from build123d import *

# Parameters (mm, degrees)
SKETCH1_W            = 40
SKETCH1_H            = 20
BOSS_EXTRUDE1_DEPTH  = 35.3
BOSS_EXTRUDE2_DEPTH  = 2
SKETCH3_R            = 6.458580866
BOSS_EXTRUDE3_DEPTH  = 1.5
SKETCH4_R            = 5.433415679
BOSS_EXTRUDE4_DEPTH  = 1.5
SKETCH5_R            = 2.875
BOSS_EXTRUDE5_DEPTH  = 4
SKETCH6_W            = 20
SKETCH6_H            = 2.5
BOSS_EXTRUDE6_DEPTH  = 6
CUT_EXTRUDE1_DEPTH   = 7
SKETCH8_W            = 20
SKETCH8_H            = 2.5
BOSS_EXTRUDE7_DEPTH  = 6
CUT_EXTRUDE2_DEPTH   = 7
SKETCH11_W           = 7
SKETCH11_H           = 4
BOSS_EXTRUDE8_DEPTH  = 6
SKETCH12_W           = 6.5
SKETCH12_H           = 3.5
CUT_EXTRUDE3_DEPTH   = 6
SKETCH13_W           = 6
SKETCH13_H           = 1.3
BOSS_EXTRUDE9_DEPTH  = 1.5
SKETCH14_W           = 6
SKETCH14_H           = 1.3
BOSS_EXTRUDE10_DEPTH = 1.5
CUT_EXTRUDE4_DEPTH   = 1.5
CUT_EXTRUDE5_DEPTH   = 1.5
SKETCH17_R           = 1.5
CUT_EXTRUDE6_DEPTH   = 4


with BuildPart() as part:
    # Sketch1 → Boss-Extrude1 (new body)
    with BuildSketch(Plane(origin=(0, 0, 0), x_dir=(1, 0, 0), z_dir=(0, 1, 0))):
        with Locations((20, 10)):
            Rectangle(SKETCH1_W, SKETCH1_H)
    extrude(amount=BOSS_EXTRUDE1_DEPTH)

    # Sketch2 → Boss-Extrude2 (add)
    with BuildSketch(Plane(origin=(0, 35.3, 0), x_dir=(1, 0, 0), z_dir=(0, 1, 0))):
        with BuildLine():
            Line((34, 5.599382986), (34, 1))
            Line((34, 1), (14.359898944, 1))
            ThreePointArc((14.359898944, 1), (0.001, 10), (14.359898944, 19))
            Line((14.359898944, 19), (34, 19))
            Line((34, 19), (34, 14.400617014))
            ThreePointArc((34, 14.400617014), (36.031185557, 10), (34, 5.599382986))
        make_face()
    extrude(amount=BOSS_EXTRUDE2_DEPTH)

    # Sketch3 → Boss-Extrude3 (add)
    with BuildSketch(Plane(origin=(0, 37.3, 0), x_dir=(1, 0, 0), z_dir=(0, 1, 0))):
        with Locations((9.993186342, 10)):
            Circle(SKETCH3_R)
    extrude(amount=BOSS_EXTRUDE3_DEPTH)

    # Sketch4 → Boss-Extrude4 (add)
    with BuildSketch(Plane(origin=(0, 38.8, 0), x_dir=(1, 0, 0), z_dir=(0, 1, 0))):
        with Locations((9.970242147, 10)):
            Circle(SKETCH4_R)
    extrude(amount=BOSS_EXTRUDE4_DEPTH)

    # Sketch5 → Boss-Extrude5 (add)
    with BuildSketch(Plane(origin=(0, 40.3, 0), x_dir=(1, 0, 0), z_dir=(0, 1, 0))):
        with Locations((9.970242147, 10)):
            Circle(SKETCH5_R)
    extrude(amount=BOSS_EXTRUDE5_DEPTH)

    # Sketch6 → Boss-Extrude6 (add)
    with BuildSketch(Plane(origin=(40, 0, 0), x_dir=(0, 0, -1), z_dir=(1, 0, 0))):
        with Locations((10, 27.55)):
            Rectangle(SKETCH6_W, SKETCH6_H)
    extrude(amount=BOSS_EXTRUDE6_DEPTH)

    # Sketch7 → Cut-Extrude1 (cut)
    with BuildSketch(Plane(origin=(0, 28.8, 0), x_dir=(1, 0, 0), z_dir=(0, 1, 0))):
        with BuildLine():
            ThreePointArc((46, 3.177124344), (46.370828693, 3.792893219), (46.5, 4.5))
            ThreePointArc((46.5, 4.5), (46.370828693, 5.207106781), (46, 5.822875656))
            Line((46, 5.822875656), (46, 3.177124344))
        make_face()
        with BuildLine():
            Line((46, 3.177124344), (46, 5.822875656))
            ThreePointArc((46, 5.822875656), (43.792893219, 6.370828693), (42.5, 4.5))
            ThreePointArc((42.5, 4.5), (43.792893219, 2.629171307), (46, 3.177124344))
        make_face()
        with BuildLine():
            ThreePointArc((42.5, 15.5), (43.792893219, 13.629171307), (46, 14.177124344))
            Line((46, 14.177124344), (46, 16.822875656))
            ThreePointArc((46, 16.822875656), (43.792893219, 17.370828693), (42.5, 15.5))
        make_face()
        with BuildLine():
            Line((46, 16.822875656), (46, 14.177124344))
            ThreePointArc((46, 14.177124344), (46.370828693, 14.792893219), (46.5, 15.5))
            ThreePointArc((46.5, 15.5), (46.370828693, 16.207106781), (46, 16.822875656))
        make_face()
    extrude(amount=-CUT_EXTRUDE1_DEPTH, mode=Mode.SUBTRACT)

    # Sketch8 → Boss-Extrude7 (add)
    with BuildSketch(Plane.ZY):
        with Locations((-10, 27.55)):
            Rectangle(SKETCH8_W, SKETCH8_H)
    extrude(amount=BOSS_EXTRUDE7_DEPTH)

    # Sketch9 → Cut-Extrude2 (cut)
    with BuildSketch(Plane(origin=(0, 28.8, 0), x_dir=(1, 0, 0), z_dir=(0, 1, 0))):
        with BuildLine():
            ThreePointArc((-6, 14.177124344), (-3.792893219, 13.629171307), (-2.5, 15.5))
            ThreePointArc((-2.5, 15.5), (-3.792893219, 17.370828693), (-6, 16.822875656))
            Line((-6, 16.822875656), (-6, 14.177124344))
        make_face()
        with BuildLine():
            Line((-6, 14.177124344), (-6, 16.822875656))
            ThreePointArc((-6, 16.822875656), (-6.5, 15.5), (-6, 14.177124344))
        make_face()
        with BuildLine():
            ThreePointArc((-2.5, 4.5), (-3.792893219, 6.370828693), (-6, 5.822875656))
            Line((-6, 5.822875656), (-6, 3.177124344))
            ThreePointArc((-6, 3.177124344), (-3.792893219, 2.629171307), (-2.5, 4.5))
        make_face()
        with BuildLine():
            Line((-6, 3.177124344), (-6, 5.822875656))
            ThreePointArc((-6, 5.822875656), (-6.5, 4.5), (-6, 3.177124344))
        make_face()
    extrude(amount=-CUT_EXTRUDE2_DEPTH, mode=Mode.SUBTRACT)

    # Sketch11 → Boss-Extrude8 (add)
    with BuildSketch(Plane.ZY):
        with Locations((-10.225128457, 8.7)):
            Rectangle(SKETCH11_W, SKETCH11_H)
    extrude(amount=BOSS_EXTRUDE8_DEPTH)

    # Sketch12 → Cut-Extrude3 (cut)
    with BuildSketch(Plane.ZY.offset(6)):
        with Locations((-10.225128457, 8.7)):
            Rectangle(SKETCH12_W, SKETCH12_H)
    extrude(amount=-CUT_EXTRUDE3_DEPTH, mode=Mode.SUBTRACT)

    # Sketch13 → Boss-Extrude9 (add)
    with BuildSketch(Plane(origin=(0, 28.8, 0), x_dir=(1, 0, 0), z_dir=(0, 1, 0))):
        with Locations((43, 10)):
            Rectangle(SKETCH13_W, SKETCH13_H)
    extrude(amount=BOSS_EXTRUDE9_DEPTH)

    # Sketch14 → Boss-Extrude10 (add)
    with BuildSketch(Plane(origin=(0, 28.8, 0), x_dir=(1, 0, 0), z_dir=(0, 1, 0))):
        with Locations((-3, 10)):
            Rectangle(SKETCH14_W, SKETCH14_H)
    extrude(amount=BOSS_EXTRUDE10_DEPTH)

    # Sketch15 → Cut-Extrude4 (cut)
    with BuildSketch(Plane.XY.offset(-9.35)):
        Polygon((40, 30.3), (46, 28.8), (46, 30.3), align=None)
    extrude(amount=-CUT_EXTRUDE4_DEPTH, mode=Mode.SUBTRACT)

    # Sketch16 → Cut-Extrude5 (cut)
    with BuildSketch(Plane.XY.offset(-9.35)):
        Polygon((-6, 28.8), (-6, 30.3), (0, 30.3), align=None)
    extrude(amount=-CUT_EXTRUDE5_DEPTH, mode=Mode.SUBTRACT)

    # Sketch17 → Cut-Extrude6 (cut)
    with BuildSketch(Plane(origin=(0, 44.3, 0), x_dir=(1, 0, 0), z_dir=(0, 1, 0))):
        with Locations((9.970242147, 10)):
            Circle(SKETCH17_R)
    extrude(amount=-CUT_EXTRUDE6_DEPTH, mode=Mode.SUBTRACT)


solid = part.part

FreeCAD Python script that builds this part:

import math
import FreeCAD as App
import Part
import Sketcher

doc = App.newDocument("Part")
body = doc.addObject("PartDesign::Body", "Body")

# Sketch on XZ plane
sketch1 = body.newObject("Sketcher::SketchObject", "Sketch")
sketch1.AttachmentSupport = (doc.getObject("XZ_Plane"), [""])
sketch1.MapMode = "FlatFace"
sketch1.addGeometry([
    Part.LineSegment(App.Vector(0, -20, 0), App.Vector(0, 0, 0)),
    Part.LineSegment(App.Vector(0, 0, 0), App.Vector(40, 0, 0)),
    Part.LineSegment(App.Vector(40, 0, 0), App.Vector(40, -20, 0)),
    Part.LineSegment(App.Vector(40, -20, 0), App.Vector(0, -20, 0)),
], False)
sketch1.addConstraint([
    Sketcher.Constraint("Coincident", 0, 2, 1, 1),
    Sketcher.Constraint("Coincident", 1, 2, 2, 1),
    Sketcher.Constraint("Coincident", 2, 2, 3, 1),
    Sketcher.Constraint("Coincident", 3, 2, 0, 1),
    Sketcher.Constraint("Vertical", 0),
    Sketcher.Constraint("Horizontal", 1),
    Sketcher.Constraint("Vertical", 2),
    Sketcher.Constraint("Horizontal", 3),
    Sketcher.Constraint("Coincident", 0, 2, -1, 1),
    Sketcher.Constraint("DistanceX", 1, 1, 1, 2, 40.0),
    Sketcher.Constraint("DistanceY", 0, 1, 0, 2, 20.0),
])
pad1 = body.newObject("PartDesign::Pad", "Pad")
pad1.Profile = sketch1
pad1.Length = 35.3
pad1.Reversed = True

# Sketch on XZ plane
sketch2 = body.newObject("Sketcher::SketchObject", "Sketch001")
sketch2.AttachmentSupport = (doc.getObject("XZ_Plane"), [""])
sketch2.MapMode = "FlatFace"
sketch2.AttachmentOffset = App.Placement(App.Vector(0, 0, -35.3), App.Rotation())
sketch2.addGeometry([
    Part.LineSegment(App.Vector(34, -1, 0), App.Vector(34, -5.6, 0)),  # 0
    Part.ArcOfCircle(Part.Circle(App.Vector(30.2, -10, 0), App.Vector(0, 0, 1), 5.8), math.radians(-50), math.radians(50)),  # 1
    Part.LineSegment(App.Vector(34, -14.4, 0), App.Vector(34, -19, 0)),  # 2
    Part.LineSegment(App.Vector(34, -19, 0), App.Vector(14.4, -19, 0)),  # 3
    Part.ArcOfCircle(Part.Circle(App.Vector(10, -10, 0), App.Vector(0, 0, 1), 10), math.radians(64), math.radians(296)),  # 4
    Part.LineSegment(App.Vector(14.4, -1, 0), App.Vector(34, -1, 0)),  # 5
], False)
sketch2.addConstraint([
    Sketcher.Constraint("Coincident", 0, 2, 1, 2),
    Sketcher.Constraint("Coincident", 1, 1, 2, 1),
    Sketcher.Constraint("Coincident", 2, 2, 3, 1),
    Sketcher.Constraint("Coincident", 3, 2, 4, 2),
    Sketcher.Constraint("Coincident", 4, 1, 5, 1),
    Sketcher.Constraint("Coincident", 5, 2, 0, 1),
    Sketcher.Constraint("Vertical", 0),
    Sketcher.Constraint("Vertical", 2),
    Sketcher.Constraint("Horizontal", 3),
    Sketcher.Constraint("Horizontal", 5),
    Sketcher.Constraint("Horizontal", 1, 3, 4, 3),
    Sketcher.Constraint("Vertical", 0, 2, 1, 1),
    Sketcher.Constraint("Vertical", 3, 2, 4, 1),
    Sketcher.Constraint("Radius", 4, 10.0),
    Sketcher.Constraint("DistanceY", 1, 3, -1, 1, 10.0),
    Sketcher.Constraint("DistanceX", -1, 1, 0, 2, 34.0),
    Sketcher.Constraint("DistanceY", 2, 2, -1, 1, 19.0),
    Sketcher.Constraint("Radius", 1, 5.782619),
    Sketcher.Constraint("DistanceX", 3, 2, 3, 1, 19.640101),
    Sketcher.Constraint("DistanceY", 0, 2, 0, 1, 4.599383),
])
pad2 = body.newObject("PartDesign::Pad", "Pad001")
pad2.Profile = sketch2
pad2.Length = 2
pad2.Reversed = True

# Sketch on XZ plane
sketch3 = body.newObject("Sketcher::SketchObject", "Sketch002")
sketch3.AttachmentSupport = (doc.getObject("XZ_Plane"), [""])
sketch3.MapMode = "FlatFace"
sketch3.AttachmentOffset = App.Placement(App.Vector(0, 0, -37.3), App.Rotation())
sketch3.addGeometry(Part.Circle(App.Vector(10, -10, 0), App.Vector(0, 0, 1), 6), False)
sketch3.addConstraint([
    Sketcher.Constraint("DistanceY", 0, 3, -1, 1, 10.0),
    Sketcher.Constraint("Diameter", 0, 12.917162),
    Sketcher.Constraint("DistanceX", -1, 1, 0, 3, 9.993186),
])
pad3 = body.newObject("PartDesign::Pad", "Pad002")
pad3.Profile = sketch3
pad3.Length = 1.5
pad3.Reversed = True

# Sketch on XZ plane
sketch4 = body.newObject("Sketcher::SketchObject", "Sketch003")
sketch4.AttachmentSupport = (doc.getObject("XZ_Plane"), [""])
sketch4.MapMode = "FlatFace"
sketch4.AttachmentOffset = App.Placement(App.Vector(0, 0, -38.8), App.Rotation())
sketch4.addGeometry(Part.Circle(App.Vector(10, -10, 0), App.Vector(0, 0, 1), 5), False)
sketch4.addConstraint([
    Sketcher.Constraint("DistanceY", 0, 3, -1, 1, 10.0),
    Sketcher.Constraint("Diameter", 0, 10.866831),
    Sketcher.Constraint("DistanceX", -1, 1, 0, 3, 9.970242),
])
pad4 = body.newObject("PartDesign::Pad", "Pad003")
pad4.Profile = sketch4
pad4.Length = 1.5
pad4.Reversed = True

# Sketch on XZ plane
sketch5 = body.newObject("Sketcher::SketchObject", "Sketch004")
sketch5.AttachmentSupport = (doc.getObject("XZ_Plane"), [""])
sketch5.MapMode = "FlatFace"
sketch5.AttachmentOffset = App.Placement(App.Vector(0, 0, -40.3), App.Rotation())
sketch5.addGeometry(Part.Circle(App.Vector(10, -10, 0), App.Vector(0, 0, 1), 2.9), False)
sketch5.addConstraint([
    Sketcher.Constraint("Diameter", 0, 5.75),
    Sketcher.Constraint("DistanceY", 0, 3, -1, 1, 10.0),
    Sketcher.Constraint("DistanceX", -1, 1, 0, 3, 9.970242),
])
pad5 = body.newObject("PartDesign::Pad", "Pad004")
pad5.Profile = sketch5
pad5.Length = 4
pad5.Reversed = True

# Sketch on YZ plane
sketch6 = body.newObject("Sketcher::SketchObject", "Sketch005")
sketch6.AttachmentSupport = (doc.getObject("YZ_Plane"), [""])
sketch6.MapMode = "FlatFace"
sketch6.AttachmentOffset = App.Placement(App.Vector(0, 0, 40), App.Rotation())
sketch6.addGeometry([
    Part.LineSegment(App.Vector(28.8, 0, 0), App.Vector(26.3, 0, 0)),
    Part.LineSegment(App.Vector(26.3, 0, 0), App.Vector(26.3, -20, 0)),
    Part.LineSegment(App.Vector(26.3, -20, 0), App.Vector(28.8, -20, 0)),
    Part.LineSegment(App.Vector(28.8, -20, 0), App.Vector(28.8, 0, 0)),
], False)
sketch6.addConstraint([
    Sketcher.Constraint("Coincident", 0, 2, 1, 1),
    Sketcher.Constraint("Coincident", 1, 2, 2, 1),
    Sketcher.Constraint("Coincident", 2, 2, 3, 1),
    Sketcher.Constraint("Coincident", 3, 2, 0, 1),
    Sketcher.Constraint("Horizontal", 0),
    Sketcher.Constraint("Vertical", 1),
    Sketcher.Constraint("Horizontal", 2),
    Sketcher.Constraint("Vertical", 3),
    Sketcher.Constraint("PointOnObject", 0, 2, -1),
    Sketcher.Constraint("DistanceY", 1, 2, 1, 1, 20.0),
    Sketcher.Constraint("DistanceX", 0, 2, 0, 1, 2.5),
    Sketcher.Constraint("DistanceX", -1, 1, 0, 2, 26.3),
])
pad6 = body.newObject("PartDesign::Pad", "Pad005")
pad6.Profile = sketch6
pad6.Length = 6

# Sketch on XZ plane
sketch7 = body.newObject("Sketcher::SketchObject", "Sketch006")
sketch7.AttachmentSupport = (doc.getObject("XZ_Plane"), [""])
sketch7.MapMode = "FlatFace"
sketch7.AttachmentOffset = App.Placement(App.Vector(0, 0, -28.8), App.Rotation())
sketch7.addGeometry([
    Part.ArcOfCircle(Part.Circle(App.Vector(44.5, -4.5, 0), App.Vector(0, 0, 1), 2), math.radians(0), math.radians(41)),  # 0
    Part.ArcOfCircle(Part.Circle(App.Vector(44.5, -4.5, 0), App.Vector(0, 0, 1), 2), math.radians(-41), math.radians(0)),  # 1
    Part.ArcOfCircle(Part.Circle(App.Vector(44.5, -4.5, 0), App.Vector(0, 0, 1), 2), math.radians(-180), math.radians(-41)),  # 2
    Part.ArcOfCircle(Part.Circle(App.Vector(44.5, -4.5, 0), App.Vector(0, 0, 1), 2), math.radians(41), math.radians(180)),  # 3
    Part.ArcOfCircle(Part.Circle(App.Vector(44.5, -15.5, 0), App.Vector(0, 0, 1), 2), math.radians(41), math.radians(180)),  # 4
    Part.ArcOfCircle(Part.Circle(App.Vector(44.5, -15.5, 0), App.Vector(0, 0, 1), 2), math.radians(0), math.radians(41)),  # 5
    Part.ArcOfCircle(Part.Circle(App.Vector(44.5, -15.5, 0), App.Vector(0, 0, 1), 2), math.radians(-41), math.radians(0)),  # 6
    Part.ArcOfCircle(Part.Circle(App.Vector(44.5, -15.5, 0), App.Vector(0, 0, 1), 2), math.radians(-180), math.radians(-41)),  # 7
], False)
sketch7.addConstraint([
    Sketcher.Constraint("Tangent", 0, 1, 1, 2),
    Sketcher.Constraint("Tangent", 1, 1, 2, 2),
    Sketcher.Constraint("Tangent", 2, 1, 3, 2),
    Sketcher.Constraint("Tangent", 3, 1, 0, 2),
    Sketcher.Constraint("Tangent", 4, 1, 5, 2),
    Sketcher.Constraint("Tangent", 5, 1, 6, 2),
    Sketcher.Constraint("Tangent", 6, 1, 7, 2),
    Sketcher.Constraint("Tangent", 7, 1, 4, 2),
    Sketcher.Constraint("Equal", 0, 1),
    Sketcher.Constraint("Equal", 3, 4),
    Sketcher.Constraint("Equal", 4, 5),
    Sketcher.Constraint("Horizontal", 3, 3, 0, 1),
    Sketcher.Constraint("Horizontal", 0, 1, 2, 1),
    Sketcher.Constraint("Horizontal", 7, 3, 5, 1),
    Sketcher.Constraint("Horizontal", 5, 1, 7, 1),
    Sketcher.Constraint("Vertical", 3, 3, 4, 3),
    Sketcher.Constraint("Vertical", 1, 1, 3, 1),
    Sketcher.Constraint("Vertical", 3, 1, 4, 1),
    Sketcher.Constraint("Vertical", 4, 1, 6, 1),
    Sketcher.Constraint("Radius", 0, 2.0),
    Sketcher.Constraint("DistanceX", -1, 1, 1, 1, 46.0),
    Sketcher.Constraint("DistanceY", 4, 3, 0, 3, 11.0),
    Sketcher.Constraint("DistanceX", -1, 1, 0, 3, 44.5),
    Sketcher.Constraint("DistanceY", 0, 3, -1, 1, 4.5),
])
pocket1 = body.newObject("PartDesign::Pocket", "Pocket")
pocket1.Profile = sketch7
pocket1.Length = 7
pocket1.Reversed = True

# Sketch on YZ plane
sketch8 = body.newObject("Sketcher::SketchObject", "Sketch007")
sketch8.AttachmentSupport = (doc.getObject("YZ_Plane"), [""])
sketch8.MapMode = "FlatFace"
sketch8.addGeometry([
    Part.LineSegment(App.Vector(28.8, -20, 0), App.Vector(26.3, -20, 0)),
    Part.LineSegment(App.Vector(26.3, -20, 0), App.Vector(26.3, 0, 0)),
    Part.LineSegment(App.Vector(26.3, 0, 0), App.Vector(28.8, 0, 0)),
    Part.LineSegment(App.Vector(28.8, 0, 0), App.Vector(28.8, -20, 0)),
], False)
sketch8.addConstraint([
    Sketcher.Constraint("Coincident", 0, 2, 1, 1),
    Sketcher.Constraint("Coincident", 1, 2, 2, 1),
    Sketcher.Constraint("Coincident", 2, 2, 3, 1),
    Sketcher.Constraint("Coincident", 3, 2, 0, 1),
    Sketcher.Constraint("Horizontal", 0),
    Sketcher.Constraint("Vertical", 1),
    Sketcher.Constraint("Horizontal", 2),
    Sketcher.Constraint("Vertical", 3),
    Sketcher.Constraint("PointOnObject", 1, 2, -1),
    Sketcher.Constraint("DistanceY", 1, 1, 1, 2, 20.0),
    Sketcher.Constraint("DistanceX", 0, 2, 0, 1, 2.5),
    Sketcher.Constraint("DistanceX", -1, 1, 0, 2, 26.3),
])
pad7 = body.newObject("PartDesign::Pad", "Pad006")
pad7.Profile = sketch8
pad7.Length = 6
pad7.Reversed = True

# Sketch on XZ plane
sketch9 = body.newObject("Sketcher::SketchObject", "Sketch008")
sketch9.AttachmentSupport = (doc.getObject("XZ_Plane"), [""])
sketch9.MapMode = "FlatFace"
sketch9.AttachmentOffset = App.Placement(App.Vector(0, 0, -28.8), App.Rotation())
sketch9.addGeometry([
    Part.ArcOfCircle(Part.Circle(App.Vector(-4.5, -15.5, 0), App.Vector(0, 0, 1), 2), math.radians(0), math.radians(139)),  # 0
    Part.ArcOfCircle(Part.Circle(App.Vector(-4.5, -15.5, 0), App.Vector(0, 0, 1), 2), math.radians(-139), math.radians(0)),  # 1
    Part.ArcOfCircle(Part.Circle(App.Vector(-4.5, -15.5, 0), App.Vector(0, 0, 1), 2), math.radians(139), math.radians(221)),  # 2
    Part.ArcOfCircle(Part.Circle(App.Vector(-4.5, -4.5, 0), App.Vector(0, 0, 1), 2), math.radians(-139), math.radians(0)),  # 3
    Part.ArcOfCircle(Part.Circle(App.Vector(-4.5, -4.5, 0), App.Vector(0, 0, 1), 2), math.radians(139), math.radians(221)),  # 4
    Part.ArcOfCircle(Part.Circle(App.Vector(-4.5, -4.5, 0), App.Vector(0, 0, 1), 2), math.radians(0), math.radians(139)),  # 5
], False)
sketch9.addConstraint([
    Sketcher.Constraint("Tangent", 0, 1, 1, 2),
    Sketcher.Constraint("Tangent", 1, 1, 2, 2),
    Sketcher.Constraint("Tangent", 2, 1, 0, 2),
    Sketcher.Constraint("Tangent", 3, 1, 4, 2),
    Sketcher.Constraint("Tangent", 4, 1, 5, 2),
    Sketcher.Constraint("Tangent", 5, 1, 3, 2),
    Sketcher.Constraint("Equal", 2, 3),
    Sketcher.Constraint("Horizontal", 2, 3, 0, 1),
    Sketcher.Constraint("Horizontal", 4, 3, 5, 1),
    Sketcher.Constraint("Vertical", 2, 3, 3, 3),
    Sketcher.Constraint("Vertical", 1, 1, 2, 1),
    Sketcher.Constraint("Vertical", 2, 1, 3, 1),
    Sketcher.Constraint("Vertical", 3, 1, 4, 1),
    Sketcher.Constraint("Radius", 0, 2.0),
    Sketcher.Constraint("DistanceX", 1, 1, -1, 1, 6.0),
    Sketcher.Constraint("DistanceY", 1, 3, 3, 3, 11.0),
    Sketcher.Constraint("DistanceX", 0, 3, -1, 1, 4.5),
    Sketcher.Constraint("DistanceY", 0, 3, -1, 1, 15.5),
])
pocket2 = body.newObject("PartDesign::Pocket", "Pocket001")
pocket2.Profile = sketch9
pocket2.Length = 7
pocket2.Reversed = True

# Sketch on YZ plane
sketch10 = body.newObject("Sketcher::SketchObject", "Sketch009")
sketch10.AttachmentSupport = (doc.getObject("YZ_Plane"), [""])
sketch10.MapMode = "FlatFace"
sketch10.addGeometry([
    Part.LineSegment(App.Vector(10.7, -13.7, 0), App.Vector(6.7, -13.7, 0)),
    Part.LineSegment(App.Vector(6.7, -13.7, 0), App.Vector(6.7, -6.7, 0)),
    Part.LineSegment(App.Vector(6.7, -6.7, 0), App.Vector(10.7, -6.7, 0)),
    Part.LineSegment(App.Vector(10.7, -6.7, 0), App.Vector(10.7, -13.7, 0)),
], False)
sketch10.addConstraint([
    Sketcher.Constraint("Coincident", 0, 2, 1, 1),
    Sketcher.Constraint("Coincident", 1, 2, 2, 1),
    Sketcher.Constraint("Coincident", 2, 2, 3, 1),
    Sketcher.Constraint("Coincident", 3, 2, 0, 1),
    Sketcher.Constraint("Horizontal", 0),
    Sketcher.Constraint("Vertical", 1),
    Sketcher.Constraint("Horizontal", 2),
    Sketcher.Constraint("Vertical", 3),
    Sketcher.Constraint("DistanceX", 0, 2, 0, 1, 4.0),
    Sketcher.Constraint("DistanceY", 1, 1, 1, 2, 7.0),
    Sketcher.Constraint("DistanceX", -1, 1, 0, 2, 6.7),
    Sketcher.Constraint("DistanceY", 0, 2, -1, 1, 13.725128),
])
pad8 = body.newObject("PartDesign::Pad", "Pad007")
pad8.Profile = sketch10
pad8.Length = 6
pad8.Reversed = True

# Sketch on YZ plane
sketch11 = body.newObject("Sketcher::SketchObject", "Sketch010")
sketch11.AttachmentSupport = (doc.getObject("YZ_Plane"), [""])
sketch11.MapMode = "FlatFace"
sketch11.AttachmentOffset = App.Placement(App.Vector(0, 0, -6), App.Rotation())
sketch11.addGeometry([
    Part.LineSegment(App.Vector(10.4, -13.5, 0), App.Vector(7, -13.5, 0)),
    Part.LineSegment(App.Vector(7, -13.5, 0), App.Vector(7, -7, 0)),
    Part.LineSegment(App.Vector(7, -7, 0), App.Vector(10.4, -7, 0)),
    Part.LineSegment(App.Vector(10.4, -7, 0), App.Vector(10.4, -13.5, 0)),
], False)
sketch11.addConstraint([
    Sketcher.Constraint("Coincident", 0, 2, 1, 1),
    Sketcher.Constraint("Coincident", 1, 2, 2, 1),
    Sketcher.Constraint("Coincident", 2, 2, 3, 1),
    Sketcher.Constraint("Coincident", 3, 2, 0, 1),
    Sketcher.Constraint("Horizontal", 0),
    Sketcher.Constraint("Vertical", 1),
    Sketcher.Constraint("Horizontal", 2),
    Sketcher.Constraint("Vertical", 3),
    Sketcher.Constraint("DistanceX", 0, 2, 0, 1, 3.5),
    Sketcher.Constraint("DistanceY", 1, 1, 1, 2, 6.5),
    Sketcher.Constraint("DistanceX", -1, 1, 0, 2, 6.95),
    Sketcher.Constraint("DistanceY", 0, 2, -1, 1, 13.475128),
])
pocket3 = body.newObject("PartDesign::Pocket", "Pocket002")
pocket3.Profile = sketch11
pocket3.Length = 6
pocket3.Reversed = True

# Sketch on XZ plane
sketch12 = body.newObject("Sketcher::SketchObject", "Sketch011")
sketch12.AttachmentSupport = (doc.getObject("XZ_Plane"), [""])
sketch12.MapMode = "FlatFace"
sketch12.AttachmentOffset = App.Placement(App.Vector(0, 0, -28.8), App.Rotation())
sketch12.addGeometry([
    Part.LineSegment(App.Vector(40, -10.7, 0), App.Vector(40, -9.3, 0)),
    Part.LineSegment(App.Vector(40, -9.3, 0), App.Vector(46, -9.3, 0)),
    Part.LineSegment(App.Vector(46, -9.3, 0), App.Vector(46, -10.7, 0)),
    Part.LineSegment(App.Vector(46, -10.7, 0), App.Vector(40, -10.7, 0)),
], False)
sketch12.addConstraint([
    Sketcher.Constraint("Coincident", 0, 2, 1, 1),
    Sketcher.Constraint("Coincident", 1, 2, 2, 1),
    Sketcher.Constraint("Coincident", 2, 2, 3, 1),
    Sketcher.Constraint("Coincident", 3, 2, 0, 1),
    Sketcher.Constraint("Vertical", 0),
    Sketcher.Constraint("Horizontal", 1),
    Sketcher.Constraint("Vertical", 2),
    Sketcher.Constraint("Horizontal", 3),
    Sketcher.Constraint("DistanceX", 1, 1, 1, 2, 6.0),
    Sketcher.Constraint("DistanceY", 0, 1, 0, 2, 1.3),
    Sketcher.Constraint("DistanceX", -1, 1, 0, 2, 40.0),
    Sketcher.Constraint("DistanceY", 0, 2, -1, 1, 9.35),
])
pad9 = body.newObject("PartDesign::Pad", "Pad008")
pad9.Profile = sketch12
pad9.Length = 1.5
pad9.Reversed = True

# Sketch on XZ plane
sketch13 = body.newObject("Sketcher::SketchObject", "Sketch012")
sketch13.AttachmentSupport = (doc.getObject("XZ_Plane"), [""])
sketch13.MapMode = "FlatFace"
sketch13.AttachmentOffset = App.Placement(App.Vector(0, 0, -28.8), App.Rotation())
sketch13.addGeometry([
    Part.LineSegment(App.Vector(-6, -10.7, 0), App.Vector(-6, -9.3, 0)),
    Part.LineSegment(App.Vector(-6, -9.3, 0), App.Vector(0, -9.3, 0)),
    Part.LineSegment(App.Vector(0, -9.3, 0), App.Vector(0, -10.7, 0)),
    Part.LineSegment(App.Vector(0, -10.7, 0), App.Vector(-6, -10.7, 0)),
], False)
sketch13.addConstraint([
    Sketcher.Constraint("Coincident", 0, 2, 1, 1),
    Sketcher.Constraint("Coincident", 1, 2, 2, 1),
    Sketcher.Constraint("Coincident", 2, 2, 3, 1),
    Sketcher.Constraint("Coincident", 3, 2, 0, 1),
    Sketcher.Constraint("Vertical", 0),
    Sketcher.Constraint("Horizontal", 1),
    Sketcher.Constraint("Vertical", 2),
    Sketcher.Constraint("Horizontal", 3),
    Sketcher.Constraint("PointOnObject", 1, 2, -2),
    Sketcher.Constraint("DistanceX", 1, 1, 1, 2, 6.0),
    Sketcher.Constraint("DistanceY", 0, 1, 0, 2, 1.3),
    Sketcher.Constraint("DistanceY", 0, 2, -1, 1, 9.35),
])
pad10 = body.newObject("PartDesign::Pad", "Pad009")
pad10.Profile = sketch13
pad10.Length = 1.5
pad10.Reversed = True

# Sketch on XY plane
sketch14 = body.newObject("Sketcher::SketchObject", "Sketch013")
sketch14.AttachmentSupport = (doc.getObject("XY_Plane"), [""])
sketch14.MapMode = "FlatFace"
sketch14.AttachmentOffset = App.Placement(App.Vector(0, 0, -9.35), App.Rotation())
sketch14.addGeometry([
    Part.LineSegment(App.Vector(40, 30.3, 0), App.Vector(46, 28.8, 0)),
    Part.LineSegment(App.Vector(46, 28.8, 0), App.Vector(46, 30.3, 0)),
    Part.LineSegment(App.Vector(46, 30.3, 0), App.Vector(40, 30.3, 0)),
], False)
sketch14.addConstraint([
    Sketcher.Constraint("Coincident", 0, 2, 1, 1),
    Sketcher.Constraint("Coincident", 1, 2, 2, 1),
    Sketcher.Constraint("Coincident", 2, 2, 0, 1),
    Sketcher.Constraint("Vertical", 1),
    Sketcher.Constraint("Horizontal", 2),
    Sketcher.Constraint("DistanceX", 2, 2, 2, 1, 6.0),
    Sketcher.Constraint("DistanceY", 1, 1, 1, 2, 1.5),
    Sketcher.Constraint("DistanceX", -1, 1, 0, 2, 46.0),
    Sketcher.Constraint("DistanceY", -1, 1, 0, 2, 28.8),
])
pocket4 = body.newObject("PartDesign::Pocket", "Pocket003")
pocket4.Profile = sketch14
pocket4.Length = 1.5

# Sketch on XY plane
sketch15 = body.newObject("Sketcher::SketchObject", "Sketch014")
sketch15.AttachmentSupport = (doc.getObject("XY_Plane"), [""])
sketch15.MapMode = "FlatFace"
sketch15.AttachmentOffset = App.Placement(App.Vector(0, 0, -9.35), App.Rotation())
sketch15.addGeometry([
    Part.LineSegment(App.Vector(-6, 30.3, 0), App.Vector(-6, 28.8, 0)),
    Part.LineSegment(App.Vector(-6, 28.8, 0), App.Vector(0, 30.3, 0)),
    Part.LineSegment(App.Vector(0, 30.3, 0), App.Vector(-6, 30.3, 0)),
], False)
sketch15.addConstraint([
    Sketcher.Constraint("Coincident", 0, 2, 1, 1),
    Sketcher.Constraint("Coincident", 1, 2, 2, 1),
    Sketcher.Constraint("Coincident", 2, 2, 0, 1),
    Sketcher.Constraint("Vertical", 0),
    Sketcher.Constraint("Horizontal", 2),
    Sketcher.Constraint("PointOnObject", 1, 2, -2),
    Sketcher.Constraint("DistanceX", 2, 2, 2, 1, 6.0),
    Sketcher.Constraint("DistanceY", 0, 2, 0, 1, 1.5),
    Sketcher.Constraint("DistanceY", -1, 1, 0, 2, 28.8),
])
pocket5 = body.newObject("PartDesign::Pocket", "Pocket004")
pocket5.Profile = sketch15
pocket5.Length = 1.5

# Sketch on XZ plane
sketch16 = body.newObject("Sketcher::SketchObject", "Sketch015")
sketch16.AttachmentSupport = (doc.getObject("XZ_Plane"), [""])
sketch16.MapMode = "FlatFace"
sketch16.AttachmentOffset = App.Placement(App.Vector(0, 0, -44.3), App.Rotation())
sketch16.addGeometry(Part.Circle(App.Vector(10, -10, 0), App.Vector(0, 0, 1), 1.5), False)
sketch16.addConstraint([
    Sketcher.Constraint("Diameter", 0, 3.0),
    Sketcher.Constraint("DistanceY", 0, 3, -1, 1, 10.0),
    Sketcher.Constraint("DistanceX", -1, 1, 0, 3, 9.970242),
])
pocket6 = body.newObject("PartDesign::Pocket", "Pocket005")
pocket6.Profile = sketch16
pocket6.Length = 4
pocket6.Reversed = True

doc.recompute()
